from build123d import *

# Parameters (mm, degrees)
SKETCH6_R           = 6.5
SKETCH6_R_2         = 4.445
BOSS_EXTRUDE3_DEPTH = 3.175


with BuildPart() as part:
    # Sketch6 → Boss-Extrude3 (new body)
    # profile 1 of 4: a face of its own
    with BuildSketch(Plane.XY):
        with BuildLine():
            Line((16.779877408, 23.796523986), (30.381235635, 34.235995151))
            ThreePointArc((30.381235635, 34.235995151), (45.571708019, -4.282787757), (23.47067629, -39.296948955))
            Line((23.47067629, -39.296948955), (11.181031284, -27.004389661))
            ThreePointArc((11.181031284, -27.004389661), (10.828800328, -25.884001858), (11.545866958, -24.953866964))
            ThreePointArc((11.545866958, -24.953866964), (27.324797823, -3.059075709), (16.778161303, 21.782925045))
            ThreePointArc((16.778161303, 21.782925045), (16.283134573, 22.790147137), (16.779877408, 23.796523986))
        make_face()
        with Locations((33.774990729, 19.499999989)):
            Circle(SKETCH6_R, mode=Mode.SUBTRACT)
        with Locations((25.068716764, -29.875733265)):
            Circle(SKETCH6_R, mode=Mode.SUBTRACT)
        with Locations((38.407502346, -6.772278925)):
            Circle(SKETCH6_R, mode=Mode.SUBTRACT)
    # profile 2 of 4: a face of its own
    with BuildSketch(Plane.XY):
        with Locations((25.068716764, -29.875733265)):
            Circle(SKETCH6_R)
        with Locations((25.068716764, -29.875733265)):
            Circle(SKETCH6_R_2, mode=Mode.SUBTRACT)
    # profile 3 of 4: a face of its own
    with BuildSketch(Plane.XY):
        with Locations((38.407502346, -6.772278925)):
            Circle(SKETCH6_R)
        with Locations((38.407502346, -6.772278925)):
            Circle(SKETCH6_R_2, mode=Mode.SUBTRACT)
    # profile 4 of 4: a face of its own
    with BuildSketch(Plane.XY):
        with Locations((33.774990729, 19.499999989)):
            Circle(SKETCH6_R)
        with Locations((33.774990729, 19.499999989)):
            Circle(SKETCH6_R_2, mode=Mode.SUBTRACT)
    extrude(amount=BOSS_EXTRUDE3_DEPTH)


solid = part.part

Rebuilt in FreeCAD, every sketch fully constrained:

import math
import FreeCAD as App
import Part
import Sketcher

V = App.Vector
Q = App.Units.Quantity

doc = App.newDocument("Part")
body = doc.addObject("PartDesign::Body", "Body")

# Sketch on XY plane
sketch1 = body.newObject("Sketcher::SketchObject", "Sketch")
sketch1.AttachmentSupport = (doc.getObject("XY_Plane"), [""])
sketch1.MapMode = "FlatFace"
sketch1.addGeometry(Part.LineSegment(V(30.381236, 34.235995, 0), V(16.779877, 23.796524, 0)), False)
sketch1.addGeometry(Part.ArcOfCircle(Part.Circle(V(17.553134, 22.789065, 0), V(0, 0, 1), 1.27), math.radians(127.507375), math.radians(232.394963)), False)
sketch1.addGeometry(Part.ArcOfCircle(Part.Circle(V(0, 0, 0), V(0, 0, 1), 27.4955), math.radians(-65.170563), math.radians(52.394963)), False)
sketch1.addGeometry(Part.ArcOfCircle(Part.Circle(V(12.079163, -26.106471, 0), V(0, 0, 1), 1.27), math.radians(114.829437), math.radians(224.993207)), False)
sketch1.addGeometry(Part.LineSegment(V(11.181031, -27.00439, 0), V(23.470676, -39.296949, 0)), False)
sketch1.addGeometry(Part.ArcOfCircle(Part.Circle(V(0, 0, 0), V(0, 0, 1), 45.772512), math.radians(-59.151623), math.radians(48.41395)), False)
sketch1.addGeometry(Part.Circle(V(38.407502, -6.772279, 0), V(0, 0, 1), 4.445), False)
sketch1.addGeometry(Part.Circle(V(25.068717, -29.875733, 0), V(0, 0, 1), 4.445), False)
sketch1.addGeometry(Part.Circle(V(33.774991, 19.5, 0), V(0, 0, 1), 4.445), False)
sketch1.addConstraint(Sketcher.Constraint("Tangent", 0, 2, 1, 1))
sketch1.addConstraint(Sketcher.Constraint("Tangent", 1, 2, 2, 2))
sketch1.addConstraint(Sketcher.Constraint("Tangent", 2, 1, 3, 1))
sketch1.addConstraint(Sketcher.Constraint("Tangent", 3, 2, 4, 1))
sketch1.addConstraint(Sketcher.Constraint("Coincident", 4, 2, 5, 1))
sketch1.addConstraint(Sketcher.Constraint("Coincident", 5, 2, 0, 1))
sketch1.addConstraint(Sketcher.Constraint("Coincident", 2, 3, -1, 1))
sketch1.addConstraint(Sketcher.Constraint("Coincident", 5, 3, -1, 1))
sketch1.addConstraint(Sketcher.Constraint("Equal", 1, 3))
sketch1.addConstraint(Sketcher.Constraint("Equal", 6, 7))
sketch1.addConstraint(Sketcher.Constraint("Equal", 7, 8))
sketch1.addConstraint(Sketcher.Constraint("Diameter", 6, Q("0.35 in")))
sketch1.addConstraint(Sketcher.Constraint("Radius", 1, Q("0.05 in")))
sketch1.addConstraint(Sketcher.Constraint("Radius", 2, Q("1.0825 in")))
sketch1.addConstraint(Sketcher.Constraint("Radius", 5, 45.772512))
sketch1.addConstraint(Sketcher.Constraint("DistanceY", -1, 1, 8, 3, 19.5))
sketch1.addConstraint(Sketcher.Constraint("DistanceY", 7, 3, 1, 3, 52.664798))
sketch1.addConstraint(Sketcher.Constraint("DistanceY", 1, 2, 0, 2, 2.013599))
sketch1.addConstraint(Sketcher.Constraint("DistanceX", 1, 3, 5, 2, 12.828102))
sketch1.addConstraint(Sketcher.Constraint("DistanceY", 3, 3, -1, 1, 26.106471))
sketch1.addConstraint(Sketcher.Constraint("DistanceY", 6, 3, -1, 1, 6.772279))
sketch1.addConstraint(Sketcher.Constraint("DistanceX", -1, 1, 8, 3, 33.774991))
sketch1.addConstraint(Sketcher.Constraint("DistanceX", -1, 1, 3, 2, 11.181031))
sketch1.addConstraint(Sketcher.Constraint("DistanceX", 3, 3, 6, 3, 26.328339))
sketch1.addConstraint(Sketcher.Constraint("DistanceX", 2, 1, 7, 3, 13.52285))
pad1 = body.newObject("PartDesign::Pad", "Pad")
pad1.Profile = sketch1
pad1.Length = Q("0.125 in")

doc.recompute()
